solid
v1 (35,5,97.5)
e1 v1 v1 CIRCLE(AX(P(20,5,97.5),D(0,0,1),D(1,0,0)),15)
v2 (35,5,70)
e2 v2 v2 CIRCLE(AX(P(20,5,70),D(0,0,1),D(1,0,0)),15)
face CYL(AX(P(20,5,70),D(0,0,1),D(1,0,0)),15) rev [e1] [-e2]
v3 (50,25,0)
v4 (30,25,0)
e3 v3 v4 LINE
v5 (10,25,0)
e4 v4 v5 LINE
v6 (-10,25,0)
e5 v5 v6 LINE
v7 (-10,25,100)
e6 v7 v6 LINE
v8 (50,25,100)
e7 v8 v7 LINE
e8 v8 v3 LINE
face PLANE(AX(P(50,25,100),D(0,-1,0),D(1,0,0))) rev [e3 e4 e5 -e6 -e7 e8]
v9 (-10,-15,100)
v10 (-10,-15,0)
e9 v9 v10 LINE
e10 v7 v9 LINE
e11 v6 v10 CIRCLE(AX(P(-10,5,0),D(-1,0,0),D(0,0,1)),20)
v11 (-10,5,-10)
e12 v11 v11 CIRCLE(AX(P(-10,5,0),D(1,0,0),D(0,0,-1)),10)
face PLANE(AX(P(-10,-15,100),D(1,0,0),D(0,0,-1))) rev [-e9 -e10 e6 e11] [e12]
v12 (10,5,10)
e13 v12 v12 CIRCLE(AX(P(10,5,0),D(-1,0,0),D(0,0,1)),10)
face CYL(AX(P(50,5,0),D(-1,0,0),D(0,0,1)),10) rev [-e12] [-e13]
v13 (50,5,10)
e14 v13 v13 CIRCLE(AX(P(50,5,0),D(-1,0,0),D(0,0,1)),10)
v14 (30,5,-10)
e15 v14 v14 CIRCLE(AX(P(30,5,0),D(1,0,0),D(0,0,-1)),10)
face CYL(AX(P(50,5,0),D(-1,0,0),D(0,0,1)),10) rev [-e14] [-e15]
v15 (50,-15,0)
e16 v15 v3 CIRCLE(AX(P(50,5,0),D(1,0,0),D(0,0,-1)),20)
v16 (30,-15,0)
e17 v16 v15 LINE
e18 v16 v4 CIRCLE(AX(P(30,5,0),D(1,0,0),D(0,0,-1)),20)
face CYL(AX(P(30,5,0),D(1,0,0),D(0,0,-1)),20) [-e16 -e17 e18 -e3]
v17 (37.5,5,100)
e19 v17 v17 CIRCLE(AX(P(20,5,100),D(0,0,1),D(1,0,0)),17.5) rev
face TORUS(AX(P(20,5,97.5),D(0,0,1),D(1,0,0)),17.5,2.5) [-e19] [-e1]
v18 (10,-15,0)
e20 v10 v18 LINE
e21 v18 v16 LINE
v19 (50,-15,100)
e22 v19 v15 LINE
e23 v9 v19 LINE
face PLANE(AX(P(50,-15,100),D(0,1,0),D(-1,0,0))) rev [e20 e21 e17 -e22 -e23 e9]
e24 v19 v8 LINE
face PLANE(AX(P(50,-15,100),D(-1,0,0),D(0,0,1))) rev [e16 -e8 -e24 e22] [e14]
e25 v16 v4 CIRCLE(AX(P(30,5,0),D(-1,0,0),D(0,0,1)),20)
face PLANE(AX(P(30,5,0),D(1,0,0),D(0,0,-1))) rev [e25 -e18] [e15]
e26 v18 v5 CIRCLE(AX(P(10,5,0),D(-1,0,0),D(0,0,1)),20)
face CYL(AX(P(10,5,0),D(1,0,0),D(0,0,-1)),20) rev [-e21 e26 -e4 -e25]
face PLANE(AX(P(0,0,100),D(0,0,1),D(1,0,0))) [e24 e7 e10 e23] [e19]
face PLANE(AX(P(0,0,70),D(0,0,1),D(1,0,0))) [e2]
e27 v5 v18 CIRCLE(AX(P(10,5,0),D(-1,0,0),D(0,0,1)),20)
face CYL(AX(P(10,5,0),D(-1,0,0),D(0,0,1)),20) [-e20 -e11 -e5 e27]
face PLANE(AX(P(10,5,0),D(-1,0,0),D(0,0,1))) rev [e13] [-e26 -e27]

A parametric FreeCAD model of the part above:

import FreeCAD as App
import Part
import Sketcher

V = App.Vector


def edges_at(feature, points):
    """Names of the edges that pass closest to the given points."""
    edges = feature.Shape.Edges
    near = lambda p: min(range(len(edges)), key=lambda i: edges[i].distToShape(Part.Vertex(*p))[0])
    return sorted({f"Edge{near(p) + 1}" for p in points})


def add_polygon(sketch, points):
    """Adds a closed chain of lines whose ends are joined by coincident constraints."""
    first, n = sketch.GeometryCount, len(points)
    for a, b in zip(points, points[1:] + points[:1]):
        sketch.addGeometry(Part.LineSegment(App.Vector(*a, 0), App.Vector(*b, 0)), False)
    for i in range(n):
        sketch.addConstraint(Sketcher.Constraint("Coincident", first + i, 2, first + (i + 1) % n, 1))

doc = App.newDocument("Part")
body = doc.addObject("PartDesign::Body", "Body")

# Sketch on XY plane
sketch1 = body.newObject("Sketcher::SketchObject", "Sketch")
sketch1.AttachmentSupport = (doc.getObject("XY_Plane"), [""])
sketch1.MapMode = "FlatFace"
add_polygon(sketch1, [(-10, 25), (-10, -15), (50, -15), (50, 25)])  # lines 0-3
sketch1.addConstraint(Sketcher.Constraint("Vertical", 0))
sketch1.addConstraint(Sketcher.Constraint("Horizontal", 1))
sketch1.addConstraint(Sketcher.Constraint("Vertical", 2))
sketch1.addConstraint(Sketcher.Constraint("Horizontal", 3))
sketch1.addConstraint(Sketcher.Constraint("DistanceX", 1, 1, 1, 2, 60.0))
sketch1.addConstraint(Sketcher.Constraint("DistanceY", 0, 2, 0, 1, 40.0))
sketch1.addConstraint(Sketcher.Constraint("DistanceX", 0, 2, -1, 1, 10.0))
sketch1.addConstraint(Sketcher.Constraint("DistanceY", 0, 2, -1, 1, 15.0))
pad1 = body.newObject("PartDesign::Pad", "Pad")
pad1.Profile = sketch1
pad1.Length = 100

# Sketch on YZ plane
sketch2 = body.newObject("Sketcher::SketchObject", "Sketch001")
sketch2.AttachmentSupport = (doc.getObject("YZ_Plane"), [""])
sketch2.MapMode = "FlatFace"
sketch2.AttachmentOffset = App.Placement(V(0, 0, 50), App.Rotation())
sketch2.addGeometry(Part.Circle(V(5, 0, 0), V(0, 0, 1), 20), False)
sketch2.addConstraint(Sketcher.Constraint("PointOnObject", 0, 3, -1))
sketch2.addConstraint(Sketcher.Constraint("Diameter", 0, 40.0))
sketch2.addConstraint(Sketcher.Constraint("DistanceX", -1, 1, 0, 3, 5.0))
pad2 = body.newObject("PartDesign::Pad", "Pad001")
pad2.Profile = sketch2
pad2.Length = 20
pad2.Reversed = True

# Sketch on YZ plane
sketch3 = body.newObject("Sketcher::SketchObject", "Sketch002")
sketch3.AttachmentSupport = (doc.getObject("YZ_Plane"), [""])
sketch3.MapMode = "FlatFace"
sketch3.AttachmentOffset = App.Placement(V(0, 0, 10), App.Rotation())
sketch3.addGeometry(Part.Circle(V(5, 0, 0), V(0, 0, 1), 20), False)
sketch3.addConstraint(Sketcher.Constraint("PointOnObject", 0, 3, -1))
sketch3.addConstraint(Sketcher.Constraint("Diameter", 0, 40.0))
sketch3.addConstraint(Sketcher.Constraint("DistanceX", -1, 1, 0, 3, 5.0))
pad3 = body.newObject("PartDesign::Pad", "Pad002")
pad3.Profile = sketch3
pad3.Length = 20
pad3.Reversed = True

# Sketch on YZ plane
sketch4 = body.newObject("Sketcher::SketchObject", "Sketch003")
sketch4.AttachmentSupport = (doc.getObject("YZ_Plane"), [""])
sketch4.MapMode = "FlatFace"
sketch4.AttachmentOffset = App.Placement(V(0, 0, -10), App.Rotation())
sketch4.addGeometry(Part.Circle(V(5, 0, 0), V(0, 0, 1), 10), False)
sketch4.addConstraint(Sketcher.Constraint("PointOnObject", 0, 3, -1))
sketch4.addConstraint(Sketcher.Constraint("Diameter", 0, 20.0))
sketch4.addConstraint(Sketcher.Constraint("DistanceX", -1, 1, 0, 3, 5.0))
pocket1 = body.newObject("PartDesign::Pocket", "Pocket")
pocket1.Profile = sketch4
pocket1.Type = "ThroughAll"
pocket1.Midplane = True

# Sketch on YZ plane
sketch5 = body.newObject("Sketcher::SketchObject", "Sketch004")
sketch5.AttachmentSupport = (doc.getObject("YZ_Plane"), [""])
sketch5.MapMode = "FlatFace"
sketch5.AttachmentOffset = App.Placement(V(0, 0, 30), App.Rotation())
sketch5.addGeometry(Part.Circle(V(5, 0, 0), V(0, 0, 1), 20), False)
sketch5.addConstraint(Sketcher.Constraint("PointOnObject", 0, 3, -1))
sketch5.addConstraint(Sketcher.Constraint("Diameter", 0, 40.0))
sketch5.addConstraint(Sketcher.Constraint("DistanceX", -1, 1, 0, 3, 5.0))
pocket2 = body.newObject("PartDesign::Pocket", "Pocket001")
pocket2.Profile = sketch5
pocket2.Length = 20

# Sketch on XY plane
sketch6 = body.newObject("Sketcher::SketchObject", "Sketch005")
sketch6.AttachmentSupport = (doc.getObject("XY_Plane"), [""])
sketch6.MapMode = "FlatFace"
sketch6.AttachmentOffset = App.Placement(V(0, 0, 100), App.Rotation())
sketch6.addGeometry(Part.Circle(V(20, 5, 0), V(0, 0, 1), 15), False)
sketch6.addConstraint(Sketcher.Constraint("Diameter", 0, 30.0))
sketch6.addConstraint(Sketcher.Constraint("DistanceX", -1, 1, 0, 3, 20.0))
sketch6.addConstraint(Sketcher.Constraint("DistanceY", -1, 1, 0, 3, 5.0))
pocket3 = body.newObject("PartDesign::Pocket", "Pocket002")
pocket3.Profile = sketch6
pocket3.Length = 30
doc.recompute()

fillet = body.newObject("PartDesign::Fillet", "Fillet")
fillet.Base = (pocket3, edges_at(pocket3, [(5, 5, 100)]))
fillet.Radius = 2.5

doc.recompute()
